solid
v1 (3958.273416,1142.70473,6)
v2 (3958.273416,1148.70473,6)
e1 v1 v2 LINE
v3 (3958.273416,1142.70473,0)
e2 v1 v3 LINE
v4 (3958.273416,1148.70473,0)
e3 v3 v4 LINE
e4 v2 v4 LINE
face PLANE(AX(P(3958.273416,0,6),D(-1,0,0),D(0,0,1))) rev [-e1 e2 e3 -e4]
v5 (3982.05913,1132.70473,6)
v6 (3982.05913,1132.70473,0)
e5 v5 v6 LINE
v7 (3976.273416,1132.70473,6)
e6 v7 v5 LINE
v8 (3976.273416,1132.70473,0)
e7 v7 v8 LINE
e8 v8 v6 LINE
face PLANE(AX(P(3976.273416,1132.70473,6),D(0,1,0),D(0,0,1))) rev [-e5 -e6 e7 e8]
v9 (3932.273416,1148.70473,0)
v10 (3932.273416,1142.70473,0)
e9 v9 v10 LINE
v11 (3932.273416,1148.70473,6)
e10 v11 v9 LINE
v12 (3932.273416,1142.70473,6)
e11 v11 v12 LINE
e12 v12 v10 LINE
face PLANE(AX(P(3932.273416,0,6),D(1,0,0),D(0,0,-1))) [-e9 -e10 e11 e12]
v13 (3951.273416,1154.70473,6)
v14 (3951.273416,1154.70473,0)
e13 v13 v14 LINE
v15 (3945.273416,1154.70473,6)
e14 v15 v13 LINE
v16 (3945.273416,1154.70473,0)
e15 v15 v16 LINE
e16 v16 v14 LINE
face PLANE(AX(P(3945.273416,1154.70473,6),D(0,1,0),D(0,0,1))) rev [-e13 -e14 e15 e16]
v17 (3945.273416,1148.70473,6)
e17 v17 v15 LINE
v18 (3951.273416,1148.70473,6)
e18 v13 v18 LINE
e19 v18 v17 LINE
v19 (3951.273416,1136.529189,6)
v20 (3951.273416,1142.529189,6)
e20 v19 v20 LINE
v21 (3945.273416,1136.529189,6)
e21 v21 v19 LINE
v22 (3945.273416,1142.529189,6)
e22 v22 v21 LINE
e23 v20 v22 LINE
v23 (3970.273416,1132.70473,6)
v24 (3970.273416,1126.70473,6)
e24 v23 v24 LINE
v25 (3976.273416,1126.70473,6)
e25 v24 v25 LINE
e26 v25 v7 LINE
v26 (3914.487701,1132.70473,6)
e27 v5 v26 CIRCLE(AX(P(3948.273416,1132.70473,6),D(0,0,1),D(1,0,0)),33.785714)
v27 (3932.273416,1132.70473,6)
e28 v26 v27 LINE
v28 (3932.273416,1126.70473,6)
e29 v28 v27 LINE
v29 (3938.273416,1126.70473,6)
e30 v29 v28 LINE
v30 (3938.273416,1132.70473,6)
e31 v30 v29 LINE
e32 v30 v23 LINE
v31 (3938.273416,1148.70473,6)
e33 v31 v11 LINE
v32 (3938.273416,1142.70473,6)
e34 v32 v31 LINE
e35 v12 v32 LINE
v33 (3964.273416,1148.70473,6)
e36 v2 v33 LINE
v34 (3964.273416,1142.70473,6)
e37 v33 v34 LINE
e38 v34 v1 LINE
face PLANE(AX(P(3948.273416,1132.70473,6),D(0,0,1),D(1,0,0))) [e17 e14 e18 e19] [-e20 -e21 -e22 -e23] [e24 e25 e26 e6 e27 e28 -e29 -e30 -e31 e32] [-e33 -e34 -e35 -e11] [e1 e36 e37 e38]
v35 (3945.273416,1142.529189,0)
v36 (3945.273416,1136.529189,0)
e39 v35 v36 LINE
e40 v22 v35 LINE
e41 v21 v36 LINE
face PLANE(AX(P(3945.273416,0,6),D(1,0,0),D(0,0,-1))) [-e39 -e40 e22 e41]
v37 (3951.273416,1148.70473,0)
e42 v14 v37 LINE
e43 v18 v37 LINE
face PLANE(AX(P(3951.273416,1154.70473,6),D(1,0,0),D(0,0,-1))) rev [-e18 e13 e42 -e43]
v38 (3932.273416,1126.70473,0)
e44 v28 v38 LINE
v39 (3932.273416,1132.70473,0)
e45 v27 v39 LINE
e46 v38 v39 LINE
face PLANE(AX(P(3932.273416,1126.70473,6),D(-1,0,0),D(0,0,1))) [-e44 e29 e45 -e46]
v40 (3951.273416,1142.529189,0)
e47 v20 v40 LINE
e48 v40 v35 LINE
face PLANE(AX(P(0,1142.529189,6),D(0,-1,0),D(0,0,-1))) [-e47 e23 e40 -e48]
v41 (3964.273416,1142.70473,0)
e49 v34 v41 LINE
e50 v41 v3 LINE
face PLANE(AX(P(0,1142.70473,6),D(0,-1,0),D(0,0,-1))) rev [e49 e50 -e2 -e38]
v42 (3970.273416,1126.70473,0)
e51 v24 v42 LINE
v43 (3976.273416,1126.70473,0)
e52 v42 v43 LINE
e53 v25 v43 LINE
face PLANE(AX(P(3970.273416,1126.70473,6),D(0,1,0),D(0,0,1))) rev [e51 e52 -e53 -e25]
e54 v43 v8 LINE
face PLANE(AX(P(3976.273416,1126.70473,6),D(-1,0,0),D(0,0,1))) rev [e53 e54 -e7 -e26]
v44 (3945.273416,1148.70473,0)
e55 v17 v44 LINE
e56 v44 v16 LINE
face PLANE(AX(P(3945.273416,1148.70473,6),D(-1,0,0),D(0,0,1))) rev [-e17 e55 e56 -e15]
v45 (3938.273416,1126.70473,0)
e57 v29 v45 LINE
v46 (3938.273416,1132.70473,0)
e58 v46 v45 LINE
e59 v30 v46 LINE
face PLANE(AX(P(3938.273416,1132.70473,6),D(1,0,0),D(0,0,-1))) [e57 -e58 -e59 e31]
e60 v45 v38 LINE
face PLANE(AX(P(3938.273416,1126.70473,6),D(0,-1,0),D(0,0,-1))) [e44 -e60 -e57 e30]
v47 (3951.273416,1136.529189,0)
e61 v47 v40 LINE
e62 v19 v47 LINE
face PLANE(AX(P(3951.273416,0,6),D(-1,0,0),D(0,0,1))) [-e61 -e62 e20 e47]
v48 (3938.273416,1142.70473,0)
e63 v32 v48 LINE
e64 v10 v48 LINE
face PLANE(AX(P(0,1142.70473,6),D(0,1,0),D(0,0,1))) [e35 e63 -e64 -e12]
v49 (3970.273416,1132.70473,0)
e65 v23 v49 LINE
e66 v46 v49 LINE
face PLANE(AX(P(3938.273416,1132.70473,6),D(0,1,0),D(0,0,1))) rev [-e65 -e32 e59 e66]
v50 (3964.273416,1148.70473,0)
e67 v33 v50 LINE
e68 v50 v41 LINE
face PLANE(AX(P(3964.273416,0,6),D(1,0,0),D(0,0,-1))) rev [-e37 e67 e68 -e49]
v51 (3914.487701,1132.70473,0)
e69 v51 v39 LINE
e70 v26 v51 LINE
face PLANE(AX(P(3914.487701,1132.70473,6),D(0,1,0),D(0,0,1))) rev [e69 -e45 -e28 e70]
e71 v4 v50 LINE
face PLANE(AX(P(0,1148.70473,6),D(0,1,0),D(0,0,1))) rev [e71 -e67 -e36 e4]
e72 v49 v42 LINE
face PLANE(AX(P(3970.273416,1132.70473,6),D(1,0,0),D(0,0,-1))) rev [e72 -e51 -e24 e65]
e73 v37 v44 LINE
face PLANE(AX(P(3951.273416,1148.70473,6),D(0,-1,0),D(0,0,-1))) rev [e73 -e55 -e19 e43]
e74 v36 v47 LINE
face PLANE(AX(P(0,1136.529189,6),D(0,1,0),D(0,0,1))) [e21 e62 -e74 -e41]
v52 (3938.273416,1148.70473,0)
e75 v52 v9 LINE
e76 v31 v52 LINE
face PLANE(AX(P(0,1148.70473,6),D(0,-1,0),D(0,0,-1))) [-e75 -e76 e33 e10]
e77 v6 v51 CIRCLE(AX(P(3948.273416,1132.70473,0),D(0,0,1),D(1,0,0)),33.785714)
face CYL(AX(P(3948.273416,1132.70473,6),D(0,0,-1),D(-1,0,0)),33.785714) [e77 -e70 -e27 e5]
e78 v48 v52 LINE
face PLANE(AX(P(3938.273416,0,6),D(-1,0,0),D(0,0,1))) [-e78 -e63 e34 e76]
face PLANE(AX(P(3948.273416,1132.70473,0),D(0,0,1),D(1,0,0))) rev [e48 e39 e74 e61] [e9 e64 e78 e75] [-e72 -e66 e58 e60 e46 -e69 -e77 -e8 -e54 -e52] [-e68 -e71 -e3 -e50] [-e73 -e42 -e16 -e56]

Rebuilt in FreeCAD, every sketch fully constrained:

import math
import FreeCAD as App
import Part
import Sketcher

V = App.Vector
Q = App.Units.Quantity


def add_polygon(sketch, points):
    """Adds a closed chain of lines whose ends are joined by coincident constraints."""
    first, n = sketch.GeometryCount, len(points)
    for a, b in zip(points, points[1:] + points[:1]):
        sketch.addGeometry(Part.LineSegment(App.Vector(*a, 0), App.Vector(*b, 0)), False)
    for i in range(n):
        sketch.addConstraint(Sketcher.Constraint("Coincident", first + i, 2, first + (i + 1) % n, 1))

doc = App.newDocument("Part")
body = doc.addObject("PartDesign::Body", "Body")

# Sketch on XY plane
sketch1 = body.newObject("Sketcher::SketchObject", "Sketch")
sketch1.AttachmentSupport = (doc.getObject("XY_Plane"), [""])
sketch1.MapMode = "FlatFace"
sketch1.addGeometry(Part.LineSegment(V(3970, 1133, 0), V(3970, 1127, 0)), False)  # 0
sketch1.addGeometry(Part.LineSegment(V(3970, 1127, 0), V(3976, 1127, 0)), False)  # 1
sketch1.addGeometry(Part.LineSegment(V(3976, 1127, 0), V(3976, 1133, 0)), False)  # 2
sketch1.addGeometry(Part.LineSegment(V(3976, 1133, 0), V(3982, 1133, 0)), False)  # 3
sketch1.addGeometry(Part.ArcOfCircle(Part.Circle(V(3948, 1133, 0), V(0, 0, 1), 34), math.radians(0), math.radians(180)), False)  # 4
sketch1.addGeometry(Part.LineSegment(V(3914, 1133, 0), V(3932, 1133, 0)), False)  # 5
sketch1.addGeometry(Part.LineSegment(V(3932, 1133, 0), V(3932, 1127, 0)), False)  # 6
sketch1.addGeometry(Part.LineSegment(V(3932, 1127, 0), V(3938, 1127, 0)), False)  # 7
sketch1.addGeometry(Part.LineSegment(V(3938, 1127, 0), V(3938, 1133, 0)), False)  # 8
sketch1.addGeometry(Part.LineSegment(V(3938, 1133, 0), V(3970, 1133, 0)), False)  # 9
add_polygon(sketch1, [(3951, 1137), (3945, 1137), (3945, 1143), (3951, 1143)])  # lines 10-13
add_polygon(sketch1, [(3938, 1143), (3932, 1143), (3932, 1149), (3938, 1149)])  # lines 14-17
add_polygon(sketch1, [(3964, 1143), (3958, 1143), (3958, 1149), (3964, 1149)])  # lines 18-21
add_polygon(sketch1, [(3951, 1149), (3945, 1149), (3945, 1155), (3951, 1155)])  # lines 22-25
sketch1.addConstraint([
    Sketcher.Constraint("Coincident", 0, 2, 1, 1),
    Sketcher.Constraint("Coincident", 1, 2, 2, 1),
    Sketcher.Constraint("Coincident", 2, 2, 3, 1),
    Sketcher.Constraint("Coincident", 3, 2, 4, 1),
    Sketcher.Constraint("Coincident", 4, 2, 5, 1),
    Sketcher.Constraint("Coincident", 5, 2, 6, 1),
    Sketcher.Constraint("Coincident", 6, 2, 7, 1),
    Sketcher.Constraint("Coincident", 7, 2, 8, 1),
    Sketcher.Constraint("Coincident", 8, 2, 9, 1),
    Sketcher.Constraint("Coincident", 9, 2, 0, 1),
    Sketcher.Constraint("Vertical", 0),
    Sketcher.Constraint("Horizontal", 1),
    Sketcher.Constraint("Vertical", 2),
    Sketcher.Constraint("Horizontal", 3),
    Sketcher.Constraint("Horizontal", 5),
    Sketcher.Constraint("Vertical", 6),
    Sketcher.Constraint("Horizontal", 7),
    Sketcher.Constraint("Vertical", 8),
    Sketcher.Constraint("Horizontal", 9),
    Sketcher.Constraint("Horizontal", 10),
    Sketcher.Constraint("Vertical", 11),
    Sketcher.Constraint("Horizontal", 12),
    Sketcher.Constraint("Vertical", 13),
    Sketcher.Constraint("Horizontal", 14),
    Sketcher.Constraint("Vertical", 15),
    Sketcher.Constraint("Horizontal", 16),
    Sketcher.Constraint("Vertical", 17),
    Sketcher.Constraint("Horizontal", 18),
    Sketcher.Constraint("Vertical", 19),
    Sketcher.Constraint("Horizontal", 20),
    Sketcher.Constraint("Vertical", 21),
    Sketcher.Constraint("Horizontal", 22),
    Sketcher.Constraint("Vertical", 23),
    Sketcher.Constraint("Horizontal", 24),
    Sketcher.Constraint("Vertical", 25),
    Sketcher.Constraint("Horizontal", 4, 3, 2, 2),
    Sketcher.Constraint("Horizontal", 3, 2, 4, 2),
    Sketcher.Constraint("Horizontal", 1, 2, 6, 2),
    Sketcher.Constraint("Horizontal", 5, 2, 8, 2),
    Sketcher.Constraint("Horizontal", 17, 2, 18, 2),
    Sketcher.Constraint("Horizontal", 16, 2, 19, 2),
    Sketcher.Constraint("Horizontal", 20, 2, 22, 2),
    Sketcher.Constraint("Vertical", 6, 2, 14, 2),
    Sketcher.Constraint("Vertical", 8, 2, 16, 2),
    Sketcher.Constraint("Vertical", 11, 2, 22, 2),
    Sketcher.Constraint("Vertical", 13, 2, 24, 2),
    Sketcher.Constraint("Equal", 1, 7),
    Sketcher.Constraint("Equal", 7, 10),
    Sketcher.Constraint("Equal", 16, 18),
    Sketcher.Constraint("Equal", 24, 0),
    Sketcher.Constraint("Equal", 8, 11),
    Sketcher.Constraint("Equal", 13, 15),
    Sketcher.Constraint("Equal", 21, 23),
    Sketcher.Constraint("DistanceX", 1, 1, 1, 2, Q("6 mm")),
    Sketcher.Constraint("DistanceX", 9, 1, 9, 2, Q("32 mm")),
    Sketcher.Constraint("DistanceX", 4, 3, 0, 2, Q("22 mm")),
    Sketcher.Constraint("DistanceX", 10, 2, 4, 3, Q("3 mm")),
    Sketcher.Constraint("DistanceY", 5, 2, 14, 2, Q("10 mm")),
    Sketcher.Constraint("DistanceX", 12, 2, 18, 2, Q("7 mm")),
    Sketcher.Constraint("Radius", 4, Q("33.785714 mm")),
    Sketcher.Constraint("DistanceX", -1, 1, 4, 2, Q("3914.487701 mm")),
    Sketcher.Constraint("DistanceY", -1, 1, 4, 3, Q("1132.70473 mm")),
    Sketcher.Constraint("DistanceY", -1, 1, 10, 2, Q("1136.529189 mm")),
])
pad1 = body.newObject("PartDesign::Pad", "Pad")
pad1.Profile = sketch1
pad1.Length = 6

doc.recompute()
